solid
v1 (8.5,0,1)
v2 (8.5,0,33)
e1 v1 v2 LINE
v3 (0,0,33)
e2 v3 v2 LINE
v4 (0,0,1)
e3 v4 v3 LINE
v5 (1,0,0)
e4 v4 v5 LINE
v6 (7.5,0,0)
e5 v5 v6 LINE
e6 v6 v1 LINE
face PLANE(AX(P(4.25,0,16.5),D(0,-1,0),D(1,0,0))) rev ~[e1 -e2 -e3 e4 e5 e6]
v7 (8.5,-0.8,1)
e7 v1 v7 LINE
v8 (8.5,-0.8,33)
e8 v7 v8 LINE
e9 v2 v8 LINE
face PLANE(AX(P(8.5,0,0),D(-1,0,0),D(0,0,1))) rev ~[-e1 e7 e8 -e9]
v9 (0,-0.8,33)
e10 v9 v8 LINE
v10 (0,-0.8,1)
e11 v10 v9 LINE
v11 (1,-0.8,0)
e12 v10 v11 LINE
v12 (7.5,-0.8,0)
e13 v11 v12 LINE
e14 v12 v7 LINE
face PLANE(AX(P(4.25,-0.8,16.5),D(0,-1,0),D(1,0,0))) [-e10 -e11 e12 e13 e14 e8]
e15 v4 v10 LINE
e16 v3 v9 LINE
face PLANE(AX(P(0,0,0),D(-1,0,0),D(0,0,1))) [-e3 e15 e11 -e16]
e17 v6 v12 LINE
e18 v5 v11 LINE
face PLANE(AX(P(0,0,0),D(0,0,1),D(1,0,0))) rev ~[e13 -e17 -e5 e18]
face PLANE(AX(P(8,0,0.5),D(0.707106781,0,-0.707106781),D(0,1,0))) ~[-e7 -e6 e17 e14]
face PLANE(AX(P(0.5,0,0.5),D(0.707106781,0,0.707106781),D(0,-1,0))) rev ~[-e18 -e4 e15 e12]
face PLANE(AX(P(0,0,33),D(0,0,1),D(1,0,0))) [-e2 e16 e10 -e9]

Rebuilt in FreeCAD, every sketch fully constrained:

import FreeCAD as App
import Part
import Sketcher


def edges_at(feature, points):
    """Names of the edges that pass closest to the given points."""
    edges = feature.Shape.Edges
    near = lambda p: min(range(len(edges)), key=lambda i: edges[i].distToShape(Part.Vertex(*p))[0])
    return sorted({f"Edge{near(p) + 1}" for p in points})


def add_polygon(sketch, points):
    """Adds a closed chain of lines whose ends are joined by coincident constraints."""
    first, n = sketch.GeometryCount, len(points)
    for a, b in zip(points, points[1:] + points[:1]):
        sketch.addGeometry(Part.LineSegment(App.Vector(*a, 0), App.Vector(*b, 0)), False)
    for i in range(n):
        sketch.addConstraint(Sketcher.Constraint("Coincident", first + i, 2, first + (i + 1) % n, 1))

doc = App.newDocument("Part")
body = doc.addObject("PartDesign::Body", "Body")

# Sketch on XZ plane
sketch1 = body.newObject("Sketcher::SketchObject", "Sketch")
sketch1.AttachmentSupport = (doc.getObject("XZ_Plane"), [""])
sketch1.MapMode = "FlatFace"
add_polygon(sketch1, [(0, 33), (0, 0), (8.5, 0), (8.5, 33)])  # lines 0-3
sketch1.addConstraint(Sketcher.Constraint("Vertical", 0))
sketch1.addConstraint(Sketcher.Constraint("Horizontal", 1))
sketch1.addConstraint(Sketcher.Constraint("Vertical", 2))
sketch1.addConstraint(Sketcher.Constraint("Horizontal", 3))
sketch1.addConstraint(Sketcher.Constraint("Coincident", 0, 2, -1, 1))
sketch1.addConstraint(Sketcher.Constraint("DistanceY", 0, 2, 0, 1, 33.0))
sketch1.addConstraint(Sketcher.Constraint("DistanceX", 1, 1, 1, 2, 8.5))
pad1 = body.newObject("PartDesign::Pad", "Pad")
pad1.Profile = sketch1
pad1.Length = 0.8
doc.recompute()

chamfer = body.newObject("PartDesign::Chamfer", "Chamfer")
chamfer.Base = (pad1, edges_at(pad1, [(8.5, -0.4, 0), (0, -0.4, 0)]))
chamfer.Size = 1

doc.recompute()
